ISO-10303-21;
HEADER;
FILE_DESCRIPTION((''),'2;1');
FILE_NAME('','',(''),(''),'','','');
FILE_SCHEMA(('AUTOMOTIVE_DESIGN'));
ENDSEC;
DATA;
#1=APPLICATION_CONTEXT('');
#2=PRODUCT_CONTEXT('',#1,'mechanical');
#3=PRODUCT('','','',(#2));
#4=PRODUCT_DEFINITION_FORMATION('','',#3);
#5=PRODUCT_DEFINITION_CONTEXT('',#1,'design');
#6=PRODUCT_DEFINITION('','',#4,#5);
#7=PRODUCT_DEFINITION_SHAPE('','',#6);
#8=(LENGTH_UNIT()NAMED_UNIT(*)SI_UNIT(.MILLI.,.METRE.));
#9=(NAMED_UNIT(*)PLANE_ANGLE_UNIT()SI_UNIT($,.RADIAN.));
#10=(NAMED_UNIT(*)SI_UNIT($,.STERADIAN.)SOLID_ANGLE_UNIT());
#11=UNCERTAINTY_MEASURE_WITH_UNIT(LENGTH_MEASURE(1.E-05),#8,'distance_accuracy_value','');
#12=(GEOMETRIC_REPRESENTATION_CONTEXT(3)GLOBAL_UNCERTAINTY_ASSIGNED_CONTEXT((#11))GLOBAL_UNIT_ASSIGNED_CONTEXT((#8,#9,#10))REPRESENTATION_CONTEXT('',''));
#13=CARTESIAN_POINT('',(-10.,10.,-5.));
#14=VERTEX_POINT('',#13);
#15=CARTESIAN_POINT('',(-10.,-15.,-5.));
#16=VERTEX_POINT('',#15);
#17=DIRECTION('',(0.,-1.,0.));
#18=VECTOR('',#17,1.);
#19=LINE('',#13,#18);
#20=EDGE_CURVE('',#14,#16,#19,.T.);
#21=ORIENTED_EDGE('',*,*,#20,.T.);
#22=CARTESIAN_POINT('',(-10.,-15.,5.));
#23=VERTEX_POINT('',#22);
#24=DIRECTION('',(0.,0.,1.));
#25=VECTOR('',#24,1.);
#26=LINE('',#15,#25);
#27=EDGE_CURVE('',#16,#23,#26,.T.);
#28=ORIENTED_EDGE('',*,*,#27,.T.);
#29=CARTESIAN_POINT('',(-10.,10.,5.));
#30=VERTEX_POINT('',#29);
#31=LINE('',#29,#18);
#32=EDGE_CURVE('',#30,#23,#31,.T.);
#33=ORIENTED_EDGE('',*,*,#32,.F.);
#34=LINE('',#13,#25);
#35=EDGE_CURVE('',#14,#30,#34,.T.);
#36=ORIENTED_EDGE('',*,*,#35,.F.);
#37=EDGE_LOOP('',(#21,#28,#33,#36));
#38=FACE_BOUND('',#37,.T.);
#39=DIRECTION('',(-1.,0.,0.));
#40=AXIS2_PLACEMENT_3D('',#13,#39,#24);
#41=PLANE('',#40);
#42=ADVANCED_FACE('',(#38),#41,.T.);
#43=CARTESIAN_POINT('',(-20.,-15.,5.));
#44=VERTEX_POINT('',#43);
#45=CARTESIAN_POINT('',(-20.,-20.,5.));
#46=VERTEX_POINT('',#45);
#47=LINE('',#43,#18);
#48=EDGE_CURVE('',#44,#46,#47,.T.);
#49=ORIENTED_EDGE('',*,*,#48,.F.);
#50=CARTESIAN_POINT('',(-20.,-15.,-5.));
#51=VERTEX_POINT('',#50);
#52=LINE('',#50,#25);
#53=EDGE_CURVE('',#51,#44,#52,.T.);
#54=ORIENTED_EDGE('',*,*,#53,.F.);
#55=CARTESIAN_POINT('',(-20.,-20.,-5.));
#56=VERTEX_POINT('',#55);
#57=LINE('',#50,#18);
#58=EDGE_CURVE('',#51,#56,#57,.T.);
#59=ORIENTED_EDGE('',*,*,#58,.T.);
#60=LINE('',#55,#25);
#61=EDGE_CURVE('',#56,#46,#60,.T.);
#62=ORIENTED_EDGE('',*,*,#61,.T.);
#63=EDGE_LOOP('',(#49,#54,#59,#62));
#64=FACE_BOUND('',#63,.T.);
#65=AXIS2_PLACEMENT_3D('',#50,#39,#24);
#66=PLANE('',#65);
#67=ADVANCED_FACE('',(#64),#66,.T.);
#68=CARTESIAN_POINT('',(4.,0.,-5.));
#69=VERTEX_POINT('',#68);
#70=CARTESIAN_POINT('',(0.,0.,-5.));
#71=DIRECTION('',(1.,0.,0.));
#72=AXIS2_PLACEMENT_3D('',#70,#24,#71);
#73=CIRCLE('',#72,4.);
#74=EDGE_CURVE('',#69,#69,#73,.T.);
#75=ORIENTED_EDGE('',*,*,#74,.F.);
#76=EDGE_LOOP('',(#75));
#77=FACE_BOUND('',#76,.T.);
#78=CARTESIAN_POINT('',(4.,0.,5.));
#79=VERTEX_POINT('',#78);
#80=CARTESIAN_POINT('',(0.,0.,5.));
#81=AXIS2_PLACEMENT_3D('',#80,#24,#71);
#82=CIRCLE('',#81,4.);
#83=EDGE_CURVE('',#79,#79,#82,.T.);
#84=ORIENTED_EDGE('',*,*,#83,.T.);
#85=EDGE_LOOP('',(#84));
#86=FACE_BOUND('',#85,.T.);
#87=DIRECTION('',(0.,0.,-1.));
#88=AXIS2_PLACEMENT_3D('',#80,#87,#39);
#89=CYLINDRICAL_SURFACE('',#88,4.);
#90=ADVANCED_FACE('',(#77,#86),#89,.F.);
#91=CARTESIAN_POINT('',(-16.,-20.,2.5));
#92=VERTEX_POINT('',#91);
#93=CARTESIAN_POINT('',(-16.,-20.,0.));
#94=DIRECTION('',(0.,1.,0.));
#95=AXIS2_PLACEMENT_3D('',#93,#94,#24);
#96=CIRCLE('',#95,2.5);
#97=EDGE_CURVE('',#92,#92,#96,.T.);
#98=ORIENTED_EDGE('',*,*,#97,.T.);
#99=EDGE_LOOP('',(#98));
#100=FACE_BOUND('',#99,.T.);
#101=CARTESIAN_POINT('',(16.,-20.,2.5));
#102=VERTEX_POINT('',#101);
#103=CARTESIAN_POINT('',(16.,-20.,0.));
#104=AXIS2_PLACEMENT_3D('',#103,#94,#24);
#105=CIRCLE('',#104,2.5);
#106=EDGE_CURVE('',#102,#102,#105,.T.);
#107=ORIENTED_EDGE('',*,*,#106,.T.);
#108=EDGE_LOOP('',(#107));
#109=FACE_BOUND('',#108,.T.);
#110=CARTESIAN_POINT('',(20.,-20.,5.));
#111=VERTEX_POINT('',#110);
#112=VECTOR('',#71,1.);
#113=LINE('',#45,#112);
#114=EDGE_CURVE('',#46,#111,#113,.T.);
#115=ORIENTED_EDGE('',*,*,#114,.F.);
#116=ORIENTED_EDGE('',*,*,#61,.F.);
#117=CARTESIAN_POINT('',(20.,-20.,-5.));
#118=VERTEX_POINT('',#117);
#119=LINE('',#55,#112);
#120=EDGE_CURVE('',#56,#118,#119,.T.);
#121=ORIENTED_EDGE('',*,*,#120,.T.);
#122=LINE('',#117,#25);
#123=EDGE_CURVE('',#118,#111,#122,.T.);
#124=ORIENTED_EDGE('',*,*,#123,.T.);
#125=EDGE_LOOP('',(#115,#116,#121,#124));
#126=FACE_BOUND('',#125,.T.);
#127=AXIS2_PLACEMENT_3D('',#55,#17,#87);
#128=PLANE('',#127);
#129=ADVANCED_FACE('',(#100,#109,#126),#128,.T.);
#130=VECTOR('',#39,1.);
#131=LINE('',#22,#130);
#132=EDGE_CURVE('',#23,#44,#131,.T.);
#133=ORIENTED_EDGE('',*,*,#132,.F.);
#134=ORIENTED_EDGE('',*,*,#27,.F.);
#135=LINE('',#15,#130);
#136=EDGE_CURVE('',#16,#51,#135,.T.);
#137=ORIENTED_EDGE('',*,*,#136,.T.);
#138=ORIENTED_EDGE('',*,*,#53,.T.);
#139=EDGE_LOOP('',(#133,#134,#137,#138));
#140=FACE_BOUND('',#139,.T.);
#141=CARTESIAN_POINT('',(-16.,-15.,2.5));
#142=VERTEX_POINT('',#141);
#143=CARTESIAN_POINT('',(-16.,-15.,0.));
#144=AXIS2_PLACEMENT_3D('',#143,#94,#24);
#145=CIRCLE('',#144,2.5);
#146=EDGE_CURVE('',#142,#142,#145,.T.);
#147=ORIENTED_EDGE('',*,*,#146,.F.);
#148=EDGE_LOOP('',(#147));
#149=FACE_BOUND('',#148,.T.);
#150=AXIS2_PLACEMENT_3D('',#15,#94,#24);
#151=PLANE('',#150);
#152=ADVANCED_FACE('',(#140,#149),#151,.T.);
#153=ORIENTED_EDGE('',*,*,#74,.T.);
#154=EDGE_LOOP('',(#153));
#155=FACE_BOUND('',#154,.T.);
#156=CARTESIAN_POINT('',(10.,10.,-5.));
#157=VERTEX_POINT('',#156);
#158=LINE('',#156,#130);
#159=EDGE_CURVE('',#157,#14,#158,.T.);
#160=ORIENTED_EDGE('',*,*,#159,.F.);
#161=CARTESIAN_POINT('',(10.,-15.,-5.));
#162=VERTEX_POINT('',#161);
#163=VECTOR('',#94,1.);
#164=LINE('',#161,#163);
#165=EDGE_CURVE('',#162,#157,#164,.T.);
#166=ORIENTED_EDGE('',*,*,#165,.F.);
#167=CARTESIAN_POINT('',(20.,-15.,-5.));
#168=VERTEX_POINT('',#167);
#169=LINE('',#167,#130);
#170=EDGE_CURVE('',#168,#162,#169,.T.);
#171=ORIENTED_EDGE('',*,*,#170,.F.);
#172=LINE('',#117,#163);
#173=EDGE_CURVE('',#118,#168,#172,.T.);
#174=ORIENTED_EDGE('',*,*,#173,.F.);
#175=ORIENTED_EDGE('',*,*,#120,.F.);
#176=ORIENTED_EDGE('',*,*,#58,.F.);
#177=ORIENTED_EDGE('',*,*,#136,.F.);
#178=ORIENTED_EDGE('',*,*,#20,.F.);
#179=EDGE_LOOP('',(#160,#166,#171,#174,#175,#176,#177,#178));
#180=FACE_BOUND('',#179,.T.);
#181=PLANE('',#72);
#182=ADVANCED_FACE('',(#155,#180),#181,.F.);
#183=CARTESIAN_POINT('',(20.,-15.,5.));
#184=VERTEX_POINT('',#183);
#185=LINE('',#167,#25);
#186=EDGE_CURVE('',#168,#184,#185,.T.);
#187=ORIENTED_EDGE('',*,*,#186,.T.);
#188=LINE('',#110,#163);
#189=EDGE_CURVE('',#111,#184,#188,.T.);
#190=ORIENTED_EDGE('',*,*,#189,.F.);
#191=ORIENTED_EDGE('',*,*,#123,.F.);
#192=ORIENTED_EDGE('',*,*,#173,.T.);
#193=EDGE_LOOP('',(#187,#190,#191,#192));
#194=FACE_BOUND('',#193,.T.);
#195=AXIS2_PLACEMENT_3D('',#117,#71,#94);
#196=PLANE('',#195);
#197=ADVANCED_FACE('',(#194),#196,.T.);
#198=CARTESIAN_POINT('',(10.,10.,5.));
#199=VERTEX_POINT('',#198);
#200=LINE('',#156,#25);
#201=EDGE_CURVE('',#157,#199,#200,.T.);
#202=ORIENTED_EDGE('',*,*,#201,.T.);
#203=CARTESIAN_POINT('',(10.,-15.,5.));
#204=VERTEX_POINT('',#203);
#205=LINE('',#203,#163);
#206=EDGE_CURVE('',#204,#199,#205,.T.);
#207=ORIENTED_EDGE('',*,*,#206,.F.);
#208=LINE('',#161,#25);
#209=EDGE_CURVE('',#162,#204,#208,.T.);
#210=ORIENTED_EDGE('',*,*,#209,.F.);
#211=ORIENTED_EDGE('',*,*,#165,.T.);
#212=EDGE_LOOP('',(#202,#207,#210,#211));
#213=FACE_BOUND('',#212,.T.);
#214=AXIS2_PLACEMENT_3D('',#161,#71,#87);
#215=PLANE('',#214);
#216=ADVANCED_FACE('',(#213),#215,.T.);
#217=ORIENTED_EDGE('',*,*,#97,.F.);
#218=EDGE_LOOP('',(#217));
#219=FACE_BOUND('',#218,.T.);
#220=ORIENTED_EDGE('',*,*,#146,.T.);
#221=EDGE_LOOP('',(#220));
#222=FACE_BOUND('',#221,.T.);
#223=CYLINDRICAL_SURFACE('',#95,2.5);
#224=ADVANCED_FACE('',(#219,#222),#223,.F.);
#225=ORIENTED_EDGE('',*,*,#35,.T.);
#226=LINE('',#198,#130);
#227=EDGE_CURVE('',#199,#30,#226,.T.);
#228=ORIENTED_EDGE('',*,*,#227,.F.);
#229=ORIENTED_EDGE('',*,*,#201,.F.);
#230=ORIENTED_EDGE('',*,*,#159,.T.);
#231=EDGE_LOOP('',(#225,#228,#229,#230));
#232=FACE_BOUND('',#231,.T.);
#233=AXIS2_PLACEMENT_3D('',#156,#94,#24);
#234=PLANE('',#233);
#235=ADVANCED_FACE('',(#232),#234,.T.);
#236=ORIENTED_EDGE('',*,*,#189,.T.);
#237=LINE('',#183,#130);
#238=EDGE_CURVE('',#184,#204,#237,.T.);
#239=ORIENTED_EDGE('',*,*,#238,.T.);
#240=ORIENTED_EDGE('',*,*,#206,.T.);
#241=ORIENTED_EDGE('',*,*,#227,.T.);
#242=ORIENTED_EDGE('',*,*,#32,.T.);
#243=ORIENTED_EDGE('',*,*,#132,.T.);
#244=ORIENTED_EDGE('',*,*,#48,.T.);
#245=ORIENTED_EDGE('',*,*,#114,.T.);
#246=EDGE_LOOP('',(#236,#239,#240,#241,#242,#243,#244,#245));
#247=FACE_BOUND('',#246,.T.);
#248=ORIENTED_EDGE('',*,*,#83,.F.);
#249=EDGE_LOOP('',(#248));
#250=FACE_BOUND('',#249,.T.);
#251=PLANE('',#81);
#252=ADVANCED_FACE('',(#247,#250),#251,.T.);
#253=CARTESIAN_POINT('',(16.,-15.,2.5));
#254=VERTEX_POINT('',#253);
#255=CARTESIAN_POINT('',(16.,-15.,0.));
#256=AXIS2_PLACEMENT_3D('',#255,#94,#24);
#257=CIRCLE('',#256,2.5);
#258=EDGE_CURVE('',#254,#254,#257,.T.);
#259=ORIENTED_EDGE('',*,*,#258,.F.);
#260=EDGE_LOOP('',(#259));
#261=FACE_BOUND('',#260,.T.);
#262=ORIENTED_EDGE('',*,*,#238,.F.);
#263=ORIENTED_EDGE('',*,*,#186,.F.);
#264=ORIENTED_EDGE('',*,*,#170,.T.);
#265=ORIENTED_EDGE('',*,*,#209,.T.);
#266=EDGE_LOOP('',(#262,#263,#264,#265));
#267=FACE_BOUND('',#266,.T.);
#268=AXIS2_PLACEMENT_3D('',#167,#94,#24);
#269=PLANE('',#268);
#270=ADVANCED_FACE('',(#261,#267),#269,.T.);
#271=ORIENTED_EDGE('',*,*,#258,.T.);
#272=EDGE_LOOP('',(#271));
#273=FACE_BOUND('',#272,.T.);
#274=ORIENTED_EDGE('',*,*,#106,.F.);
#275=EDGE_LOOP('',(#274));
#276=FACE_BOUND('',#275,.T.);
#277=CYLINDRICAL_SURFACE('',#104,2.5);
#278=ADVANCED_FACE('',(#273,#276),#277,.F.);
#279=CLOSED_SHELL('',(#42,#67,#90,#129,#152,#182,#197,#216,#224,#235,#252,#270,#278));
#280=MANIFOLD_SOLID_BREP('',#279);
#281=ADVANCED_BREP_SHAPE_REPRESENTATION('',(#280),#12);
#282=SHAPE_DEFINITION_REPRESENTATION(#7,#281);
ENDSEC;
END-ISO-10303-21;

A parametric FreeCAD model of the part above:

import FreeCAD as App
import Part
import Sketcher

V = App.Vector


def add_polygon(sketch, points):
    """Adds a closed chain of lines whose ends are joined by coincident constraints."""
    first, n = sketch.GeometryCount, len(points)
    for a, b in zip(points, points[1:] + points[:1]):
        sketch.addGeometry(Part.LineSegment(App.Vector(*a, 0), App.Vector(*b, 0)), False)
    for i in range(n):
        sketch.addConstraint(Sketcher.Constraint("Coincident", first + i, 2, first + (i + 1) % n, 1))

doc = App.newDocument("Part")
body = doc.addObject("PartDesign::Body", "Body")

sketch1 = body.newObject("Sketcher::SketchObject", "Sketch")
sketch1.AttachmentSupport = (doc.getObject("XY_Plane"), [""])
sketch1.MapMode = "FlatFace"
add_polygon(sketch1, [(-10, 10), (-10, -15), (-20, -15), (-20, -20), (20, -20), (20, -15), (10, -15), (10, 10)])
sketch1.addConstraint(Sketcher.Constraint("Vertical", 0))
sketch1.addConstraint(Sketcher.Constraint("Horizontal", 1))
sketch1.addConstraint(Sketcher.Constraint("Vertical", 2))
sketch1.addConstraint(Sketcher.Constraint("Horizontal", 3))
sketch1.addConstraint(Sketcher.Constraint("Vertical", 4))
sketch1.addConstraint(Sketcher.Constraint("Horizontal", 5))
sketch1.addConstraint(Sketcher.Constraint("Vertical", 6))
sketch1.addConstraint(Sketcher.Constraint("Horizontal", 7))
sketch1.addConstraint(Sketcher.Constraint("Symmetric", 1, 2, 4, 2, -2))
sketch1.addConstraint(Sketcher.Constraint("Equal", 1, 5))
sketch1.addConstraint(Sketcher.Constraint("DistanceX", 1, 2, 1, 1, 10.0))
sketch1.addConstraint(Sketcher.Constraint("DistanceX", 3, 1, 3, 2, 40.0))
sketch1.addConstraint(Sketcher.Constraint("DistanceY", 0, 2, 0, 1, 25.0))
sketch1.addConstraint(Sketcher.Constraint("DistanceY", 2, 2, 2, 1, 5.0))
sketch1.addConstraint(Sketcher.Constraint("DistanceY", 0, 2, -1, 1, 15.0))
pad1 = body.newObject("PartDesign::Pad", "Pad")
pad1.Profile = sketch1
pad1.Type = "TwoLengths"
pad1.Length = 5
pad1.Length2 = 5

sketch2 = body.newObject("Sketcher::SketchObject", "Sketch001")
sketch2.AttachmentSupport = (doc.getObject("XY_Plane"), [""])
sketch2.MapMode = "FlatFace"
sketch2.addGeometry(Part.Circle(V(0, 0, 0), V(0, 0, 1), 4), False)
sketch2.addConstraint(Sketcher.Constraint("Coincident", 0, 3, -1, 1))
sketch2.addConstraint(Sketcher.Constraint("Diameter", 0, 8.0))
pocket1 = body.newObject("PartDesign::Pocket", "Pocket")
pocket1.Profile = sketch2
pocket1.Type = "ThroughAll"
pocket1.Midplane = True

sketch3 = body.newObject("Sketcher::SketchObject", "Sketch002")
sketch3.AttachmentSupport = (doc.getObject("XZ_Plane"), [""])
sketch3.MapMode = "FlatFace"
sketch3.addGeometry(Part.Circle(V(-16, 0, 0), V(0, 0, 1), 2.5), False)
sketch3.addGeometry(Part.Circle(V(16, 0, 0), V(0, 0, 1), 2.5), False)
sketch3.addConstraint(Sketcher.Constraint("Equal", 0, 1))
sketch3.addConstraint(Sketcher.Constraint("Symmetric", 0, 3, 1, 3, -1, 1))
sketch3.addConstraint(Sketcher.Constraint("PointOnObject", 0, 3, -1))
sketch3.addConstraint(Sketcher.Constraint("Diameter", 0, 5.0))
sketch3.addConstraint(Sketcher.Constraint("DistanceX", 0, 3, -1, 1, 16.0))
pocket2 = body.newObject("PartDesign::Pocket", "Pocket001")
pocket2.Profile = sketch3
pocket2.Type = "ThroughAll"
pocket2.Reversed = True

doc.recompute()
